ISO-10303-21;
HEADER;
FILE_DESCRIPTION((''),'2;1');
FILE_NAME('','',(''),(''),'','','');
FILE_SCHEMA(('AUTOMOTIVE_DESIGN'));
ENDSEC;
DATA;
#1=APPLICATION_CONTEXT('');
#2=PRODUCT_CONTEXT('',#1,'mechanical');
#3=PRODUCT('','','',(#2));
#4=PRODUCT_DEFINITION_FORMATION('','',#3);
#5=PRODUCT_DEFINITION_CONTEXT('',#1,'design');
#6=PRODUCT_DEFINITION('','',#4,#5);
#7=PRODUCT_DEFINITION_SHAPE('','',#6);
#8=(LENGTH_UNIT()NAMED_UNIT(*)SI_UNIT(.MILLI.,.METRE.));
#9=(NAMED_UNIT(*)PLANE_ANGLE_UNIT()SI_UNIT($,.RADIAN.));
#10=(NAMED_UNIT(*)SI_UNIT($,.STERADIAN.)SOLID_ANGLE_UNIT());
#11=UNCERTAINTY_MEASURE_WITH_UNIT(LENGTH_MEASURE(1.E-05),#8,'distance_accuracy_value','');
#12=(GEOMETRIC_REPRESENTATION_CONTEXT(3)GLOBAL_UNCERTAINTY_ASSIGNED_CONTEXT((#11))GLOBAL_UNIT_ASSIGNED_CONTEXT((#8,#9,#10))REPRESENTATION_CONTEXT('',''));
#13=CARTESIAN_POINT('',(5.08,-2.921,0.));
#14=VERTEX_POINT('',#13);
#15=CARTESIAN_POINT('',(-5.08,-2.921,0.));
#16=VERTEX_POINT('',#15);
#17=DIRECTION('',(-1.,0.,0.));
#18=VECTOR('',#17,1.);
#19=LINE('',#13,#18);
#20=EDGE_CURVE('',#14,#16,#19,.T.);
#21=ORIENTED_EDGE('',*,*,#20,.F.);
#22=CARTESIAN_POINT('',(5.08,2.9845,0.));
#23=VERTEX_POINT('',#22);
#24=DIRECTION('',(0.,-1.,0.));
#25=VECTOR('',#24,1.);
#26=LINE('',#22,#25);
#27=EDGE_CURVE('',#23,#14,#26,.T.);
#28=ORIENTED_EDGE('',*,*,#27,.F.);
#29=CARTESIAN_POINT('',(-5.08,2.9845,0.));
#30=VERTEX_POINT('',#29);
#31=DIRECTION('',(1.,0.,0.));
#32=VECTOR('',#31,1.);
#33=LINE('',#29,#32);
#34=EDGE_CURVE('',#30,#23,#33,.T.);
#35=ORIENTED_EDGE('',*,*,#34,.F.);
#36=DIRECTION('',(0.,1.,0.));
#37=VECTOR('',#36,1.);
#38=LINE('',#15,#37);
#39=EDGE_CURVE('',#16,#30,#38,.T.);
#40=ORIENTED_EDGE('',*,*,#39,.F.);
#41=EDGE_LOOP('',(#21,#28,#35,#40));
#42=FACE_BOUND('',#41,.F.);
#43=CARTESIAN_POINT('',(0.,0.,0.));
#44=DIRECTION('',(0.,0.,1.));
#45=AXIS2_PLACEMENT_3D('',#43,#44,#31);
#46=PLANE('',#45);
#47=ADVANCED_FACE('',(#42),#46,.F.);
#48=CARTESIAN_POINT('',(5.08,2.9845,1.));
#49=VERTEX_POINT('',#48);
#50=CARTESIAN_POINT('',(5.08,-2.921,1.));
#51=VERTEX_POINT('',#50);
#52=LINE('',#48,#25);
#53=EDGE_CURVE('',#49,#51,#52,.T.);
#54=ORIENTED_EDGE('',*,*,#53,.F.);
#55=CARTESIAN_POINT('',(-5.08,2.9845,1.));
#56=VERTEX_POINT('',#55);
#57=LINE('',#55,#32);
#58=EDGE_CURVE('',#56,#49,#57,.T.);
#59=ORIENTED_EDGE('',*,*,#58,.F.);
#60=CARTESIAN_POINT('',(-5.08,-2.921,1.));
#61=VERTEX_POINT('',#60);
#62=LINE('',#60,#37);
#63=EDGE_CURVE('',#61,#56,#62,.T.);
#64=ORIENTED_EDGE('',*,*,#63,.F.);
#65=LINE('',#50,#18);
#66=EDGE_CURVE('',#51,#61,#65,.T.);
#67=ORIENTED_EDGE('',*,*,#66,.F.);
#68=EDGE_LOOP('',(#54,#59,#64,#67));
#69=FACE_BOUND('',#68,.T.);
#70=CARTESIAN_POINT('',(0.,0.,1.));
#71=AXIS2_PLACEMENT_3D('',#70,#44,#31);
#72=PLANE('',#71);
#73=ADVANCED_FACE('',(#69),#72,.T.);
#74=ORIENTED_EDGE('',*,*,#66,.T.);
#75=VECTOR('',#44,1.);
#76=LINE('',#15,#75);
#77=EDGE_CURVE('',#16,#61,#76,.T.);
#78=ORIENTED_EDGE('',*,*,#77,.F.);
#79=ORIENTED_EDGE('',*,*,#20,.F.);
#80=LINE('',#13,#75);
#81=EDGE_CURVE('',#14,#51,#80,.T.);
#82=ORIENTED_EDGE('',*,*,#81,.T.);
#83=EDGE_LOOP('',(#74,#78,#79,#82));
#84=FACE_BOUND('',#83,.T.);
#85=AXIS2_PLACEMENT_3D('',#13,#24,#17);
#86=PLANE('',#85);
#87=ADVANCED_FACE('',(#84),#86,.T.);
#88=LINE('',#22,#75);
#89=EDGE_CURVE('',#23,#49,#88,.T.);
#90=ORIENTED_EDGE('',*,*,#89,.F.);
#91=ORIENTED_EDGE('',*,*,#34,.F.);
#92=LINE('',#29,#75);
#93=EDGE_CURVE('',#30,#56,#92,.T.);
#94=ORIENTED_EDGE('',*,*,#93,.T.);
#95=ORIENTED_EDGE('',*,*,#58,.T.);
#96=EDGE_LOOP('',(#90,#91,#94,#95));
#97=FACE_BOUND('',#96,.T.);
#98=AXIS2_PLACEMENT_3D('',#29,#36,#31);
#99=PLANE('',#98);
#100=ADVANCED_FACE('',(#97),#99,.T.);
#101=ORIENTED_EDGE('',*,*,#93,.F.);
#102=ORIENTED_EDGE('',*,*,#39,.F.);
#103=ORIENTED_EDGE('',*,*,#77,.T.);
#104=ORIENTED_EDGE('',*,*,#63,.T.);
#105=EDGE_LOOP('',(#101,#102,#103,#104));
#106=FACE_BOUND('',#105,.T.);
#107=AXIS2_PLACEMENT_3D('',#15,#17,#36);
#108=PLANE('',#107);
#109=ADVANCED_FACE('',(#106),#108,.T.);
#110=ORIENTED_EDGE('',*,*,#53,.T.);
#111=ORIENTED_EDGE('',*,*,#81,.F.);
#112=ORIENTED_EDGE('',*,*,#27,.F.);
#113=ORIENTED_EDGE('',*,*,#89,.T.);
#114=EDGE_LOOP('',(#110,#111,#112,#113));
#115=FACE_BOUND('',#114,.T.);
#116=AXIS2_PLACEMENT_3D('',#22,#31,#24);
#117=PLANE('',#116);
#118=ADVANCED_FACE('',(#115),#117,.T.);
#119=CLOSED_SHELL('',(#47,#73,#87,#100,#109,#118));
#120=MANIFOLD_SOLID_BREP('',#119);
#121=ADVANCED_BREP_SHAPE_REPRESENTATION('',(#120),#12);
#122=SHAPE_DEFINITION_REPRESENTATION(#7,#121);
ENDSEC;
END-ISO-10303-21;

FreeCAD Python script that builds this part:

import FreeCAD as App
import Part
import Sketcher
from FreeCAD import Vector

doc = App.newDocument("Part")
body = doc.addObject("PartDesign::Body", "Body")

# Sketch on XY plane
sketch1 = body.newObject("Sketcher::SketchObject", "Sketch")
sketch1.AttachmentSupport = (doc.getObject("XY_Plane"), [""])
sketch1.MapMode = "FlatFace"
sketch1.addGeometry(Part.LineSegment(Vector(5, 3, 0), Vector(-5, 3, 0)), False)
sketch1.addGeometry(Part.LineSegment(Vector(-5, 3, 0), Vector(-5, -3, 0)), False)
sketch1.addGeometry(Part.LineSegment(Vector(-5, -3, 0), Vector(5, -3, 0)), False)
sketch1.addGeometry(Part.LineSegment(Vector(5, -3, 0), Vector(5, 3, 0)), False)
sketch1.addConstraint(Sketcher.Constraint("Coincident", 0, 2, 1, 1))
sketch1.addConstraint(Sketcher.Constraint("Coincident", 1, 2, 2, 1))
sketch1.addConstraint(Sketcher.Constraint("Coincident", 2, 2, 3, 1))
sketch1.addConstraint(Sketcher.Constraint("Coincident", 3, 2, 0, 1))
sketch1.addConstraint(Sketcher.Constraint("Horizontal", 0))
sketch1.addConstraint(Sketcher.Constraint("Vertical", 1))
sketch1.addConstraint(Sketcher.Constraint("Horizontal", 2))
sketch1.addConstraint(Sketcher.Constraint("Vertical", 3))
sketch1.addConstraint(Sketcher.Constraint("DistanceX", 0, 2, 0, 1, 10.16))
sketch1.addConstraint(Sketcher.Constraint("DistanceX", 0, 2, -1, 1, 5.08))
sketch1.addConstraint(Sketcher.Constraint("DistanceY", 1, 2, 1, 1, 5.9055))
sketch1.addConstraint(Sketcher.Constraint("DistanceY", 1, 2, -1, 1, 2.921))
pad1 = body.newObject("PartDesign::Pad", "Pad")
pad1.Profile = sketch1
pad1.Length = 1

doc.recompute()
